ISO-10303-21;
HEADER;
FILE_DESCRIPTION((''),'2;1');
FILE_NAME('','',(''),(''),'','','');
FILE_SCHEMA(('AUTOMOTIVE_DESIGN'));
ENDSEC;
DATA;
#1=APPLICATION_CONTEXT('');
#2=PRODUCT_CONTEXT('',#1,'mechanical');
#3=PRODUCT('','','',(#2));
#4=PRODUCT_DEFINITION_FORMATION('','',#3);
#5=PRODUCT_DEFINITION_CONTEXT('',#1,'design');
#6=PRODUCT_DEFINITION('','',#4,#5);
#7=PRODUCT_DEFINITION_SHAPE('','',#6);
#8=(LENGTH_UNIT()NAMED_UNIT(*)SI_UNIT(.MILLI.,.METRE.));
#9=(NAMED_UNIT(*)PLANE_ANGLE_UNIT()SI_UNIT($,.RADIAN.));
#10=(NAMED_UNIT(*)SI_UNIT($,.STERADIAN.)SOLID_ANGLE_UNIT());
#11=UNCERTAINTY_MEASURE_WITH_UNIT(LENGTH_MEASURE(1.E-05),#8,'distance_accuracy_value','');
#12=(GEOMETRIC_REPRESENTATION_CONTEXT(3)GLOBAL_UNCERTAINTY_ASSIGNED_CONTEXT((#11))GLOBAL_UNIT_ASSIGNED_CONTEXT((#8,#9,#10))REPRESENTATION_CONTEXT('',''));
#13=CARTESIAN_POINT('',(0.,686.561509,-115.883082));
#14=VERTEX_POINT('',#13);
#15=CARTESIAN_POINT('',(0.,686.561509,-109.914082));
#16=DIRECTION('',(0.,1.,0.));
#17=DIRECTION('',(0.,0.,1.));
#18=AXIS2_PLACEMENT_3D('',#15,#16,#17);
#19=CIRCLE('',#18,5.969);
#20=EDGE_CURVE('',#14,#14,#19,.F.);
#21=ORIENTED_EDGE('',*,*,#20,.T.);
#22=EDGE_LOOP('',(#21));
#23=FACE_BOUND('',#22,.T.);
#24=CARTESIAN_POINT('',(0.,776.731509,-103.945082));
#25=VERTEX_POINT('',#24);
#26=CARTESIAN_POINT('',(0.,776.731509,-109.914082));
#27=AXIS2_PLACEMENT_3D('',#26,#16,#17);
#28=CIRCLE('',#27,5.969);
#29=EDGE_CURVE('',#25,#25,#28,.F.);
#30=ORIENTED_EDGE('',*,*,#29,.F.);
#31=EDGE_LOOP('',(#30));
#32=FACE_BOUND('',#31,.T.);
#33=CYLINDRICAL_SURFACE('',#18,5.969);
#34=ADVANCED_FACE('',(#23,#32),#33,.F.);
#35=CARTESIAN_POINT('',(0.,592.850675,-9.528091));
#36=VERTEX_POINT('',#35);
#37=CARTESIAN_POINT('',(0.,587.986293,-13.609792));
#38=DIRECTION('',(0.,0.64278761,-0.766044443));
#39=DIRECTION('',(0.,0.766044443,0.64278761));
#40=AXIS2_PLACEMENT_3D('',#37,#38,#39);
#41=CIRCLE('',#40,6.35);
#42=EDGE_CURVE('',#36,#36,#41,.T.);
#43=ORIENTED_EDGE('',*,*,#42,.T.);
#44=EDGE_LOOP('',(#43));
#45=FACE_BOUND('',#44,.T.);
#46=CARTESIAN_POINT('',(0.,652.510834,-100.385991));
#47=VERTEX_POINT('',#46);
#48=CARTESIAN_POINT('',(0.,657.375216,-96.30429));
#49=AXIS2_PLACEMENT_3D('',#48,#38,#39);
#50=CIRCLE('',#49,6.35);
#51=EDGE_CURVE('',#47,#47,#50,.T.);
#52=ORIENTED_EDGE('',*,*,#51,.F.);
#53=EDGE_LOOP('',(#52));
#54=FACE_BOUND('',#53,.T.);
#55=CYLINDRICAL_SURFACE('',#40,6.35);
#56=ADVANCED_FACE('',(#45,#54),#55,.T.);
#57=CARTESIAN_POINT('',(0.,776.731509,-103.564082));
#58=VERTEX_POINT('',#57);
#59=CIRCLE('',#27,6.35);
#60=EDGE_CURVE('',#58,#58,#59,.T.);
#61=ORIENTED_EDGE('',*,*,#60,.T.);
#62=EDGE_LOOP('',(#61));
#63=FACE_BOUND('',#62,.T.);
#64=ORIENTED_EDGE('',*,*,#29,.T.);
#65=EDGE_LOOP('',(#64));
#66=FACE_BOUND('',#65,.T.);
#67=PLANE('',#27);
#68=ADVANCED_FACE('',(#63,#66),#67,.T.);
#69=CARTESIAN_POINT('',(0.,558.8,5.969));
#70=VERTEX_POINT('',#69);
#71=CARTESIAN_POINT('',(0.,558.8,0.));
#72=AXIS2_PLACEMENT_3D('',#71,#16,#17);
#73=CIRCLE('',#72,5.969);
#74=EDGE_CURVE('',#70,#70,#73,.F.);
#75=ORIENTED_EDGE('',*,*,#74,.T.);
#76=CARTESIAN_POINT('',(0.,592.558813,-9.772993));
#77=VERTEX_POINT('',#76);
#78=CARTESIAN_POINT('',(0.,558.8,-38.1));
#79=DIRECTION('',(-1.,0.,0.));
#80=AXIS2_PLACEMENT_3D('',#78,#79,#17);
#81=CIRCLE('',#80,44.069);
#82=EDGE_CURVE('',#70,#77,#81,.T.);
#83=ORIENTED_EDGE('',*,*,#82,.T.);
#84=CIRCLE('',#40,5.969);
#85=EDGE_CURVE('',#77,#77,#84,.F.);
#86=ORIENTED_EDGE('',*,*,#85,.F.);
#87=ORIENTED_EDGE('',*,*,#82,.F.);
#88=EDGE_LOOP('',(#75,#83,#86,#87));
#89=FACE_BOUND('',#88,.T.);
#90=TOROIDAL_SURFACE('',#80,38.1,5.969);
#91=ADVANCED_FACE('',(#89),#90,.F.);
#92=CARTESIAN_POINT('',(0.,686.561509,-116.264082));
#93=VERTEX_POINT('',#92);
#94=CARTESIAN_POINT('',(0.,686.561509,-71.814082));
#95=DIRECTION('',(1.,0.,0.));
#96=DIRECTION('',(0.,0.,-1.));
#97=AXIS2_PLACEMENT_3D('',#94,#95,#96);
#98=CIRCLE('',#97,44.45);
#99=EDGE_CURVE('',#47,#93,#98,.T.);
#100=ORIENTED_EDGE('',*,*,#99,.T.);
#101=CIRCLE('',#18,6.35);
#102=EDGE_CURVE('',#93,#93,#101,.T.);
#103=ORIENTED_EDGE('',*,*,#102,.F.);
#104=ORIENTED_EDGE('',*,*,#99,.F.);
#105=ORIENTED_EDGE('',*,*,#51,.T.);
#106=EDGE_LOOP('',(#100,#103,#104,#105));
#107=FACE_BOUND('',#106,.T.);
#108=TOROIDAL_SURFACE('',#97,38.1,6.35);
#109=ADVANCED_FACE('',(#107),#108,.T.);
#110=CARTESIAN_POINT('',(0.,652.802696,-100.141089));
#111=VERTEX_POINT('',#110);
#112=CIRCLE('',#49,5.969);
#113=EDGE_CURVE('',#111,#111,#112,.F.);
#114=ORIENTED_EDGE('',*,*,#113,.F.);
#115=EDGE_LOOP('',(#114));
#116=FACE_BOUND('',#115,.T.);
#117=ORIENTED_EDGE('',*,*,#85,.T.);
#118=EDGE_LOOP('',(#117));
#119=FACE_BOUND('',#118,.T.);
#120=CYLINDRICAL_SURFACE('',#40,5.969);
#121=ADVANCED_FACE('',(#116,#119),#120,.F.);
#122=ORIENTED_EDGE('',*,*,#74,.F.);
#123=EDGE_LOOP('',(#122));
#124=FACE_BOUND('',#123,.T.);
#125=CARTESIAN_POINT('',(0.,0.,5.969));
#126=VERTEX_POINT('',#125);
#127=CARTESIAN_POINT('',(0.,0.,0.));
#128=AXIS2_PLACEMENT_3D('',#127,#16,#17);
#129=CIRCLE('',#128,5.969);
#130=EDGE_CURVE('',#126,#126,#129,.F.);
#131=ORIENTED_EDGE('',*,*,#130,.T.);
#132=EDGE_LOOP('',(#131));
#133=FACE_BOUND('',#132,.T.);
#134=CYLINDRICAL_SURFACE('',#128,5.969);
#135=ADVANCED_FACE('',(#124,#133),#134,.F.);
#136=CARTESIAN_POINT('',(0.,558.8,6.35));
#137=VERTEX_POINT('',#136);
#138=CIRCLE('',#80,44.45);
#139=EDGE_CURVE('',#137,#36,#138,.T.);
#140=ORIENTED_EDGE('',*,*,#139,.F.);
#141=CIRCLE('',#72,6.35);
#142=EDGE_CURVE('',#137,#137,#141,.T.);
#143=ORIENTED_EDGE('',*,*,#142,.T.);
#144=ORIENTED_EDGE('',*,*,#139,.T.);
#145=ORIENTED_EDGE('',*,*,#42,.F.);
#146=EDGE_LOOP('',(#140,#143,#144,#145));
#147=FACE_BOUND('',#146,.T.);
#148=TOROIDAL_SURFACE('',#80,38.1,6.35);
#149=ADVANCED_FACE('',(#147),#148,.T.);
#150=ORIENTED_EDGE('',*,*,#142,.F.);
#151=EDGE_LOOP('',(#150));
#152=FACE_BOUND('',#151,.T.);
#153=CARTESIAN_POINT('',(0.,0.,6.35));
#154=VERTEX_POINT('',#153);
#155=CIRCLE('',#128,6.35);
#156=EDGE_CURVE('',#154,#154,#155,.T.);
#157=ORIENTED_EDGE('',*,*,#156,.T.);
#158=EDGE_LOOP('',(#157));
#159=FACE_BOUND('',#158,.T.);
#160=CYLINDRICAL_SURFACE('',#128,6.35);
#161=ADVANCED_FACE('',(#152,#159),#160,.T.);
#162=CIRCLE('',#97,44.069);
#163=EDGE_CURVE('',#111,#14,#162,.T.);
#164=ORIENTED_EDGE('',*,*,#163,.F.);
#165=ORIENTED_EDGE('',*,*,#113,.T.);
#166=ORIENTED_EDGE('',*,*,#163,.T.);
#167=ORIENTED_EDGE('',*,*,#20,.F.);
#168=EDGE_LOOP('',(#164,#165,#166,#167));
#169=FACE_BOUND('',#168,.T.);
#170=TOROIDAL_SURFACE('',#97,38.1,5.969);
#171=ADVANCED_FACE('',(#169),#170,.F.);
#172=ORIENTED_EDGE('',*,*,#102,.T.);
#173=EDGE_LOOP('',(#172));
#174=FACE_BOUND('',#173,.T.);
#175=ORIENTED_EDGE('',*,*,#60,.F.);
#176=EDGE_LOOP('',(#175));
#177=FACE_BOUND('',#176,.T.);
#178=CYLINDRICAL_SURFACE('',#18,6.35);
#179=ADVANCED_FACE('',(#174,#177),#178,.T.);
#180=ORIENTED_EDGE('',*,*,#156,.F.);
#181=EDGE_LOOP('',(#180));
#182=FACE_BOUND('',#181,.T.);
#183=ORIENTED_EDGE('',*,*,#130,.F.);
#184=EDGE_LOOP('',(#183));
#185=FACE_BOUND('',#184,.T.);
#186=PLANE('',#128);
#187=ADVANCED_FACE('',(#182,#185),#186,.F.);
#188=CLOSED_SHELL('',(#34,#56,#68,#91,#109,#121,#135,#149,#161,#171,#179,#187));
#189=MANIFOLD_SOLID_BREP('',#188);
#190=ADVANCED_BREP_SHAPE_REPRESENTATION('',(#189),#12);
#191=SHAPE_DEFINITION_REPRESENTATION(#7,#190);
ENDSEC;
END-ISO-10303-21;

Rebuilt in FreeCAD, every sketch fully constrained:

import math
import FreeCAD as App
import Part
import Sketcher

V = App.Vector
Q = App.Units.Quantity

doc = App.newDocument("Part")
body = doc.addObject("PartDesign::Body", "Body")

# Sketch on XZ plane
sketch1 = doc.addObject("Sketcher::SketchObject", "Sketch")
body.addObject(sketch1)
sketch1.AttachmentSupport = (doc.XZ_Plane, [""])
sketch1.MapMode = "FlatFace"
sketch1.addGeometry([
    Part.Circle(V(0, 0, 0), V(0, 0, 1), 6),
    Part.Circle(V(0, 0, 0), V(0, 0, 1), 6),
], False)
sketch1.addConstraint([
    Sketcher.Constraint("Coincident", 0, 3, -1, 1),
    Sketcher.Constraint("Coincident", 1, 3, -1, 1),
    Sketcher.Constraint("Diameter", 0, Q("0.5 in")),
    Sketcher.Constraint("Diameter", 1, Q("0.47 in")),
])

# Sketch on YZ plane
sketch2 = doc.addObject("Sketcher::SketchObject", "Sketch001")
body.addObject(sketch2)
sketch2.AttachmentSupport = (doc.YZ_Plane, [""])
sketch2.MapMode = "FlatFace"
sketch2.addGeometry([
    Part.LineSegment(V(0, 0, 0), V(559, 0, 0)),  # 0
    Part.ArcOfCircle(Part.Circle(V(559, -38, 0), V(0, 0, 1), 38), math.radians(40), math.radians(90)),  # 1
    Part.LineSegment(V(588, -14, 0), V(657, -96, 0)),  # 2
    Part.ArcOfCircle(Part.Circle(V(687, -72, 0), V(0, 0, 1), 38), math.radians(-140), math.radians(-90)),  # 3
    Part.LineSegment(V(687, -110, 0), V(777, -110, 0)),  # 4
], False)
sketch2.addConstraint([
    Sketcher.Constraint("Tangent", 0, 2, 1, 2),
    Sketcher.Constraint("Tangent", 1, 1, 2, 1),
    Sketcher.Constraint("Tangent", 2, 2, 3, 1),
    Sketcher.Constraint("Tangent", 3, 2, 4, 1),
    Sketcher.Constraint("Horizontal", 0),
    Sketcher.Constraint("Horizontal", 4),
    Sketcher.Constraint("Coincident", 0, 1, -1, 1),
    Sketcher.Constraint("Equal", 1, 3),
    Sketcher.Constraint("Radius", 1, Q("1.5 in")),
    Sketcher.Constraint("DistanceX", 0, 1, 0, 2, Q("22 in")),
    Sketcher.Constraint("Angle", 2, Q("-50 deg")),
    Sketcher.Constraint("DistanceX", 4, 1, 4, 2, Q("3.55 in")),
    Sketcher.Constraint("Distance", 2, Q("4.25 in")),
])
doc.recompute()

additivepipe = doc.addObject("PartDesign::AdditivePipe", "AdditivePipe")
body.addObject(additivepipe)
additivepipe.Profile = sketch1
additivepipe.Spine = (sketch2, ["Edge1", "Edge2", "Edge3", "Edge4", "Edge5"])

doc.recompute()
